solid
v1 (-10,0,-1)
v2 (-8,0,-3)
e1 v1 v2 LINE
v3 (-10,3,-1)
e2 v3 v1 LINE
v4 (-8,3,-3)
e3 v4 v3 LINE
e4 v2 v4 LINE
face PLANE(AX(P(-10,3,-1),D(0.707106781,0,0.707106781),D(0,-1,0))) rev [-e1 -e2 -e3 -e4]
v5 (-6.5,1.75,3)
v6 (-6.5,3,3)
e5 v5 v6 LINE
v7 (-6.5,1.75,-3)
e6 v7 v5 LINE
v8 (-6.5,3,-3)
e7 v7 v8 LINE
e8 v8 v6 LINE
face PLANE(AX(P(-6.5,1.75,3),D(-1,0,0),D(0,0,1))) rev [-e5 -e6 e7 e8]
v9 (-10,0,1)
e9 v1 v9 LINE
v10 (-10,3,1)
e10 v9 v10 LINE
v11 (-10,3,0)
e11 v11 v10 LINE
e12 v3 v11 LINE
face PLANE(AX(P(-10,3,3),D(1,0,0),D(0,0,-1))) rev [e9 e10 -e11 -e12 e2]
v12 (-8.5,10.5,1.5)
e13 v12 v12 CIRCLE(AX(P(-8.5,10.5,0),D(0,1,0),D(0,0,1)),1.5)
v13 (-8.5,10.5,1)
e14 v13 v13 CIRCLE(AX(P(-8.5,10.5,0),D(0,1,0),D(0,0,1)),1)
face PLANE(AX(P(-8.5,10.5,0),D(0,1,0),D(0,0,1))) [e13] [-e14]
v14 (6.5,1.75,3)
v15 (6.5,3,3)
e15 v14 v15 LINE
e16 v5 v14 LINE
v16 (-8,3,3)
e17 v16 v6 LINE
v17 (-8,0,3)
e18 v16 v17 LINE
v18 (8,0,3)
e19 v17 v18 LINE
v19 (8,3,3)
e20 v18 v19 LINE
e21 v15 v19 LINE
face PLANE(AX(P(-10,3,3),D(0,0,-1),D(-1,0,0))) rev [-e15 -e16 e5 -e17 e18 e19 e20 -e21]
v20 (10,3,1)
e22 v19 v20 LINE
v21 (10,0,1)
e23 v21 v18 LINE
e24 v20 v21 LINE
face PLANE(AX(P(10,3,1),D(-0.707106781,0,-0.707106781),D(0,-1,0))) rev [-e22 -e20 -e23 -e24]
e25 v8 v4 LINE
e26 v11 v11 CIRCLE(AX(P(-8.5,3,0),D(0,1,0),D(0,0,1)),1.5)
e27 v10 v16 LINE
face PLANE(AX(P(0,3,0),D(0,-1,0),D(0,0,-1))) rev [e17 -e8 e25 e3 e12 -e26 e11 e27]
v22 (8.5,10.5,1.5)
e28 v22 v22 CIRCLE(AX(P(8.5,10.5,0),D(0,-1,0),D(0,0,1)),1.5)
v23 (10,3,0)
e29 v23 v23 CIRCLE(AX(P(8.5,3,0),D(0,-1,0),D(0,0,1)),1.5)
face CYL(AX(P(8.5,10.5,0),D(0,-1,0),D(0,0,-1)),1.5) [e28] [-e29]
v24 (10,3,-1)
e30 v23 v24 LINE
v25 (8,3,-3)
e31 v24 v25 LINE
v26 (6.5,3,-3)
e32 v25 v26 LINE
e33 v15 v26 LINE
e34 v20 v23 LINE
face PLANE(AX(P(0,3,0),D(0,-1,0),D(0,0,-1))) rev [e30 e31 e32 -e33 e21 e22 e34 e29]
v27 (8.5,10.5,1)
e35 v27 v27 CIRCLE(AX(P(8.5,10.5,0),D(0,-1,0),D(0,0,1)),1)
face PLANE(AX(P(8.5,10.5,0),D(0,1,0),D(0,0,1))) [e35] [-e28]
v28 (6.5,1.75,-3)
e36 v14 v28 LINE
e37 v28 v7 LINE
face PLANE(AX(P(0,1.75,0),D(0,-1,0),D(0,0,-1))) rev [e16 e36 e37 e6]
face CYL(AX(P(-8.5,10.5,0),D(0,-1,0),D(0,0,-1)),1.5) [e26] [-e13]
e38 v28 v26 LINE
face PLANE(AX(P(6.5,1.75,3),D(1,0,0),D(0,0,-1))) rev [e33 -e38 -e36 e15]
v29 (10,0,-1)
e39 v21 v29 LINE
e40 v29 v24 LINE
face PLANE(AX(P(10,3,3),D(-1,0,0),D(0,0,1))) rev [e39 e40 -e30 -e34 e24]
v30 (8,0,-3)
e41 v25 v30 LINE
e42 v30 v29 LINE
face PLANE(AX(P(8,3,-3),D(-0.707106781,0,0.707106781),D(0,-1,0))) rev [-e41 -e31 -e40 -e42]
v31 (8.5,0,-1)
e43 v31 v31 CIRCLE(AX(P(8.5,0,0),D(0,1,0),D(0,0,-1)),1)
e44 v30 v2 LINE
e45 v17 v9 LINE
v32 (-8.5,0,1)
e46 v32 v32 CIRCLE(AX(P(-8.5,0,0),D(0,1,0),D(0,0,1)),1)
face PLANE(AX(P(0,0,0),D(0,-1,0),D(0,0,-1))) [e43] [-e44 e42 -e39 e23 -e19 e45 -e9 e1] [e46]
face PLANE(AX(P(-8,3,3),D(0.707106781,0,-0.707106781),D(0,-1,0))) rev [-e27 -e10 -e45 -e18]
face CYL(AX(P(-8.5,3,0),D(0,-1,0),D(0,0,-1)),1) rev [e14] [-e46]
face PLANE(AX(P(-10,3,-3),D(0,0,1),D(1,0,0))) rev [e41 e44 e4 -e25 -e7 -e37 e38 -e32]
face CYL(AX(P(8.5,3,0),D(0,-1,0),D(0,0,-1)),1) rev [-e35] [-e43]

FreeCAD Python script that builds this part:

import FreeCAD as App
import Part
import Sketcher
Q = App.Units.Quantity


def edges_at(feature, points):
    """Names of the edges that pass closest to the given points."""
    edges = feature.Shape.Edges
    near = lambda p: min(range(len(edges)), key=lambda i: edges[i].distToShape(Part.Vertex(*p))[0])
    return sorted({f"Edge{near(p) + 1}" for p in points})

doc = App.newDocument("Part")
body = doc.addObject("PartDesign::Body", "Body")

sketch1 = body.newObject("Sketcher::SketchObject", "Sketch")
sketch1.AttachmentSupport = (doc.getObject("XZ_Plane"), [""])
sketch1.MapMode = "FlatFace"
sketch1.addGeometry([
    Part.LineSegment(App.Vector(-10, -3, 0), App.Vector(-10, 3, 0)),
    Part.LineSegment(App.Vector(-10, 3, 0), App.Vector(10, 3, 0)),
    Part.LineSegment(App.Vector(10, 3, 0), App.Vector(10, -3, 0)),
    Part.LineSegment(App.Vector(10, -3, 0), App.Vector(-10, -3, 0)),
    Part.Circle(App.Vector(-8.5, 0, 0), App.Vector(0, 0, 1), 1),
    Part.Circle(App.Vector(8.5, 0, 0), App.Vector(0, 0, 1), 1),
], False)
sketch1.addConstraint([
    Sketcher.Constraint("Coincident", 0, 2, 1, 1),
    Sketcher.Constraint("Coincident", 1, 2, 2, 1),
    Sketcher.Constraint("Coincident", 2, 2, 3, 1),
    Sketcher.Constraint("Coincident", 3, 2, 0, 1),
    Sketcher.Constraint("Vertical", 0),
    Sketcher.Constraint("Horizontal", 1),
    Sketcher.Constraint("Vertical", 2),
    Sketcher.Constraint("Horizontal", 3),
    Sketcher.Constraint("Equal", 4, 5),
    Sketcher.Constraint("Symmetric", 4, 3, 5, 3, -1, 1),
    Sketcher.Constraint("Symmetric", 0, 2, 2, 2, -1, 1),
    Sketcher.Constraint("PointOnObject", 4, 3, -1),
    Sketcher.Constraint("Diameter", 4, Q("2 mm")),
    Sketcher.Constraint("DistanceX", 1, 1, 1, 2, Q("20 mm")),
    Sketcher.Constraint("DistanceY", 0, 1, 0, 2, Q("6 mm")),
    Sketcher.Constraint("DistanceX", 4, 3, 5, 3, Q("17 mm")),
])
pad1 = body.newObject("PartDesign::Pad", "Pad")
pad1.Profile = sketch1
pad1.Length = 3
pad1.Reversed = True

sketch2 = body.newObject("Sketcher::SketchObject", "Sketch001")
sketch2.AttachmentSupport = (doc.getObject("XZ_Plane"), [""])
sketch2.MapMode = "FlatFace"
sketch2.AttachmentOffset = App.Placement(App.Vector(0, 0, -3), App.Rotation())
sketch2.addGeometry([
    Part.LineSegment(App.Vector(-6, -3, 0), App.Vector(-6, 3, 0)),
    Part.LineSegment(App.Vector(-6, 3, 0), App.Vector(6, 3, 0)),
    Part.LineSegment(App.Vector(6, 3, 0), App.Vector(6, -3, 0)),
    Part.LineSegment(App.Vector(6, -3, 0), App.Vector(-6, -3, 0)),
], False)
sketch2.addConstraint([
    Sketcher.Constraint("Coincident", 0, 2, 1, 1),
    Sketcher.Constraint("Coincident", 1, 2, 2, 1),
    Sketcher.Constraint("Coincident", 2, 2, 3, 1),
    Sketcher.Constraint("Coincident", 3, 2, 0, 1),
    Sketcher.Constraint("Vertical", 0),
    Sketcher.Constraint("Horizontal", 1),
    Sketcher.Constraint("Vertical", 2),
    Sketcher.Constraint("Horizontal", 3),
    Sketcher.Constraint("Symmetric", 0, 2, 2, 2, -1, 1),
    Sketcher.Constraint("DistanceX", 1, 1, 1, 2, Q("13 mm")),
    Sketcher.Constraint("DistanceY", 0, 1, 0, 2, Q("6 mm")),
])
pocket1 = body.newObject("PartDesign::Pocket", "Pocket")
pocket1.Profile = sketch2
pocket1.Length = 1.25
pocket1.Reversed = True
doc.recompute()

chamfer = body.newObject("PartDesign::Chamfer", "Chamfer")
chamfer.Base = (pocket1, edges_at(pocket1, [
    (10, 1.5, 3),
    (-10, 1.5, 3),
    (-10, 1.5, -3),
    (10, 1.5, -3),
]))
chamfer.Size = 2

sketch3 = body.newObject("Sketcher::SketchObject", "Sketch002")
sketch3.AttachmentSupport = (doc.getObject("XZ_Plane"), [""])
sketch3.MapMode = "FlatFace"
sketch3.AttachmentOffset = App.Placement(App.Vector(0, 0, -3), App.Rotation())
sketch3.addGeometry([
    Part.Circle(App.Vector(-8.5, 0, 0), App.Vector(0, 0, 1), 1.5),
    Part.Circle(App.Vector(-8.5, 0, 0), App.Vector(0, 0, 1), 1),
], False)
sketch3.addConstraint([
    Sketcher.Constraint("Coincident", 1, 3, 0, 3),
    Sketcher.Constraint("PointOnObject", 0, 3, -1),
    Sketcher.Constraint("Diameter", 0, Q("3 mm")),
    Sketcher.Constraint("Diameter", 1, Q("2 mm")),
    Sketcher.Constraint("DistanceX", 0, 3, -1, 1, Q("8.5 mm")),
])
pad2 = body.newObject("PartDesign::Pad", "Pad001")
pad2.Profile = sketch3
pad2.Length = 7.5
pad2.Reversed = True
doc.recompute()

mirrored = body.newObject("PartDesign::Mirrored", "Mirrored")
mirrored.Originals = [pad2]
mirrored.MirrorPlane = (doc.getObject("YZ_Plane"), [""])
body.Tip = mirrored

doc.recompute()
